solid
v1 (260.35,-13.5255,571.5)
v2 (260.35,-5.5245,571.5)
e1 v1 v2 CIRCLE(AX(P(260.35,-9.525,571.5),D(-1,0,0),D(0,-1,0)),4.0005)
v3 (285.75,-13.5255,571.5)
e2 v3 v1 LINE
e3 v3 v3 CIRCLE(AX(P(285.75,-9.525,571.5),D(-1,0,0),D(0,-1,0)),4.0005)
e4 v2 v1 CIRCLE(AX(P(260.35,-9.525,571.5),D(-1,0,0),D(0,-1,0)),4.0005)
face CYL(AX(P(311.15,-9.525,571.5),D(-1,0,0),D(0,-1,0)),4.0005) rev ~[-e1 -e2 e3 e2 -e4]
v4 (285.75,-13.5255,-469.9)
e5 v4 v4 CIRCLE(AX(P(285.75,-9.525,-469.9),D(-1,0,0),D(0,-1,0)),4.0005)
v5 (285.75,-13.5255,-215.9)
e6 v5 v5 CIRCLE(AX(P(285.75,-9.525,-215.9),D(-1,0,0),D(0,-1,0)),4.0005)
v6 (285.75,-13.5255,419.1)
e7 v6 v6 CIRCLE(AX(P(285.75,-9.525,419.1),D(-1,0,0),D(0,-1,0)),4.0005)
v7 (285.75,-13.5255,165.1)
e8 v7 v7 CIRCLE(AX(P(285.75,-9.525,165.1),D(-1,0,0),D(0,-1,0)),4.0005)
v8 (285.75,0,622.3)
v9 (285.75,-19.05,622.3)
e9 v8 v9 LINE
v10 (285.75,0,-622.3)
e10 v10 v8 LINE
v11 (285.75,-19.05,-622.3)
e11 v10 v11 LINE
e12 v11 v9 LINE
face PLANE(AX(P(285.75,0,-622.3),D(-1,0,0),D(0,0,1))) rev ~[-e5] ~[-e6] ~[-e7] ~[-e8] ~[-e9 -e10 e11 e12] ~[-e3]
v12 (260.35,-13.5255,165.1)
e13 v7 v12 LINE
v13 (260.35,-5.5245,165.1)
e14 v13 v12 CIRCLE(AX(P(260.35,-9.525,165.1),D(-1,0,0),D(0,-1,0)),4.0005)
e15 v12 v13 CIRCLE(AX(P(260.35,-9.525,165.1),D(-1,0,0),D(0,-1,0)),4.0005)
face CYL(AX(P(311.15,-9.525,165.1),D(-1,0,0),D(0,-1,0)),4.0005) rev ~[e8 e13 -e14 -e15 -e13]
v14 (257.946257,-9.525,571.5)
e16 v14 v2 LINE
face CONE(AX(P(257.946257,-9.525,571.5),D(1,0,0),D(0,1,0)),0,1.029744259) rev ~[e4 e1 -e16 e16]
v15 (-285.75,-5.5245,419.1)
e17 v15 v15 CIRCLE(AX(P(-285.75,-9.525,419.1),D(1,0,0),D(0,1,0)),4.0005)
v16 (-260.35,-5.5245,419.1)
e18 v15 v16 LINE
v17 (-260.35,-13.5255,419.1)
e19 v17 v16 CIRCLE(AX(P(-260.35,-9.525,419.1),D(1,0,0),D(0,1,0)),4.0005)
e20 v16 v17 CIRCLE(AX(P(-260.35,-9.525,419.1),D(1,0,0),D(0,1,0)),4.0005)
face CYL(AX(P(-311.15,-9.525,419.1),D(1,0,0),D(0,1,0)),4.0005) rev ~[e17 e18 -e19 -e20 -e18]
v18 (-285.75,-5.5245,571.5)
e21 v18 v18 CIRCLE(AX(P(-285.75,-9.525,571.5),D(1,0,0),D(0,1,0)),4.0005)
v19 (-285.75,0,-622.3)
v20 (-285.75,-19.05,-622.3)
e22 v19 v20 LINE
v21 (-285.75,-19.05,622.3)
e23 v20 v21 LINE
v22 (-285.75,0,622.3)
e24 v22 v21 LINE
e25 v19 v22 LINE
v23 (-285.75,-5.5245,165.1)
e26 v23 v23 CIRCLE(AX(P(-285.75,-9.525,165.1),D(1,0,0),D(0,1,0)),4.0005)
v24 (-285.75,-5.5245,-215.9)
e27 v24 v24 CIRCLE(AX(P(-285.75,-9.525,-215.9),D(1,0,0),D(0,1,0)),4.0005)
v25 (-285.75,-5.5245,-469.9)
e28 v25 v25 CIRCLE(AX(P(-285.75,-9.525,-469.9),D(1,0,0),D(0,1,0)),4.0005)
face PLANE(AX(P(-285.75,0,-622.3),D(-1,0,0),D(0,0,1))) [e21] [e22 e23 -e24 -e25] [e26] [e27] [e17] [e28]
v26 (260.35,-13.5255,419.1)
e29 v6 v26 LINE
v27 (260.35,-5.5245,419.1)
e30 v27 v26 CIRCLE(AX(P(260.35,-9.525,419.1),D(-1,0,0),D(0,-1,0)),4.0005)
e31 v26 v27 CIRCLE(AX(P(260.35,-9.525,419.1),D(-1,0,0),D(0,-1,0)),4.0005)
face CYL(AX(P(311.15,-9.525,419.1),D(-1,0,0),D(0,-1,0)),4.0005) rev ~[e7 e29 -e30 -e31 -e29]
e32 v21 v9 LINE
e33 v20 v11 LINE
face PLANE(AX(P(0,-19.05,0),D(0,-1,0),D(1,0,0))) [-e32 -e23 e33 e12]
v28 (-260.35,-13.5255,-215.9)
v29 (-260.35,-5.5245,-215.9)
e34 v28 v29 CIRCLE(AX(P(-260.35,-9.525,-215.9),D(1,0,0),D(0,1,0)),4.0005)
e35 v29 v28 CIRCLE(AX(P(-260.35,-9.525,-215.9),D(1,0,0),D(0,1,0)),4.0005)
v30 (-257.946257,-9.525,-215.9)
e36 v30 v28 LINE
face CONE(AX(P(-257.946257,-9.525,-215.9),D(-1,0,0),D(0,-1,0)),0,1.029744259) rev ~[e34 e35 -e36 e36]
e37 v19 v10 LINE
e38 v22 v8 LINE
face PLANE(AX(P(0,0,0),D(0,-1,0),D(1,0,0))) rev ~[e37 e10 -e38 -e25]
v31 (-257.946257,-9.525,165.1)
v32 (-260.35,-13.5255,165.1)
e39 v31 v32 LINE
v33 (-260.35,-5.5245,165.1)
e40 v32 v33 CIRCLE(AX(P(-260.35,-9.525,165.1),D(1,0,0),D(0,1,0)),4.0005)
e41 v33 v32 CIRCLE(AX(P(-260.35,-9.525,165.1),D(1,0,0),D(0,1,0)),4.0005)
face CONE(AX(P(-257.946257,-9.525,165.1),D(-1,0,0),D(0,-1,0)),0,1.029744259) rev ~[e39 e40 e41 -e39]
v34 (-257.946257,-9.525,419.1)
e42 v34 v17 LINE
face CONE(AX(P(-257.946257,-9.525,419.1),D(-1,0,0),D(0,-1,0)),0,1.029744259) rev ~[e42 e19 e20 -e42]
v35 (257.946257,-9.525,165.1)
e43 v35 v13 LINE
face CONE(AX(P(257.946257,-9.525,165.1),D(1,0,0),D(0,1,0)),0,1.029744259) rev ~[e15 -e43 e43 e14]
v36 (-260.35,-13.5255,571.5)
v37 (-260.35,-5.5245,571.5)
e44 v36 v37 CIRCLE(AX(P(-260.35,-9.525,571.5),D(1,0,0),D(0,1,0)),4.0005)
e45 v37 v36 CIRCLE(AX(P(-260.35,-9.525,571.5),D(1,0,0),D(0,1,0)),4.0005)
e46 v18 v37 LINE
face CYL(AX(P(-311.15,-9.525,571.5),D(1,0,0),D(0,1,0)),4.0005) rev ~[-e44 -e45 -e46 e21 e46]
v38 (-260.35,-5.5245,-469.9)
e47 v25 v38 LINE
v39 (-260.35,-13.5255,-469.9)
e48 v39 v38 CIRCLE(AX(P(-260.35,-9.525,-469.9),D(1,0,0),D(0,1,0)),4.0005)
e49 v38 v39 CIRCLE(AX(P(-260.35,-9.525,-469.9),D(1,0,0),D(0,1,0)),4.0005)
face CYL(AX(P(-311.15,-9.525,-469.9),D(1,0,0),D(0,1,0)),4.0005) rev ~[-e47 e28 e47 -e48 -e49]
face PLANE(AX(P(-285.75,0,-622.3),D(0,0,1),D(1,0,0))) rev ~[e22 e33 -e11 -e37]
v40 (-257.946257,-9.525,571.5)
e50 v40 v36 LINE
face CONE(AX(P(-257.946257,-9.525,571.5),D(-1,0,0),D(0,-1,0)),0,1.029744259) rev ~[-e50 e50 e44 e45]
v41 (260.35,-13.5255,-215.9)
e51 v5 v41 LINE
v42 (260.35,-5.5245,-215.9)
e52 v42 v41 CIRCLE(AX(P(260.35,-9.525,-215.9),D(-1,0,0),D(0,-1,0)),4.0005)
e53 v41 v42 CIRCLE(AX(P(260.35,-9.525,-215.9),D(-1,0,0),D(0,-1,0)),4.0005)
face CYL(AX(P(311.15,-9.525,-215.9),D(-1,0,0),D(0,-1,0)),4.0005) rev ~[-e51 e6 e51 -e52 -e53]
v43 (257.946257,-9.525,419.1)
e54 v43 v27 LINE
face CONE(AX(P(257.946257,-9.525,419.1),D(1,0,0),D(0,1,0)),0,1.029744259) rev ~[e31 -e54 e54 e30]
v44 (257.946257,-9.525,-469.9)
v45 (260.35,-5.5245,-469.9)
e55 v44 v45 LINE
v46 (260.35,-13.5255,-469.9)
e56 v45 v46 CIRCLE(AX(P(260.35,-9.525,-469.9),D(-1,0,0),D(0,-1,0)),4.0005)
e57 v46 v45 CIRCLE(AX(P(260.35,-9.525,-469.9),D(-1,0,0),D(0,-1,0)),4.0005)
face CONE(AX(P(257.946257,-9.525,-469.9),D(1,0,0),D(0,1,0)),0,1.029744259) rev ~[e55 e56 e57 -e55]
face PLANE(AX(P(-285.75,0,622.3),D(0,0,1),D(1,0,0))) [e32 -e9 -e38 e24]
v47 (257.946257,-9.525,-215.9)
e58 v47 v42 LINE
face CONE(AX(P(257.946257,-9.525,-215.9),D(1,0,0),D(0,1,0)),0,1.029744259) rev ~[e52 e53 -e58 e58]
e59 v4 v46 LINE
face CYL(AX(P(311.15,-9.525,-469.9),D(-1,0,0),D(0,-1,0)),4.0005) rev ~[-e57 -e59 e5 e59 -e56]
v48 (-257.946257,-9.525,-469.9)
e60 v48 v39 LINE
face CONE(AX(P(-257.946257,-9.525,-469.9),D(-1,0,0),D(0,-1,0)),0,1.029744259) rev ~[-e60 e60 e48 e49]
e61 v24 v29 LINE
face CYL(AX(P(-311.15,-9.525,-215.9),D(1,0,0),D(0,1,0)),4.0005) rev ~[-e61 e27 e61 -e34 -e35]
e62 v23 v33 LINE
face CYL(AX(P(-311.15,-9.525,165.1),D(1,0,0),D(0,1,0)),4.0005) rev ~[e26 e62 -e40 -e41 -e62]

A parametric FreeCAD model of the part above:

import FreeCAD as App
import Part
import Sketcher
Q = App.Units.Quantity


def add_polygon(sketch, points):
    """Adds a closed chain of lines whose ends are joined by coincident constraints."""
    first, n = sketch.GeometryCount, len(points)
    for a, b in zip(points, points[1:] + points[:1]):
        sketch.addGeometry(Part.LineSegment(App.Vector(*a, 0), App.Vector(*b, 0)), False)
    for i in range(n):
        sketch.addConstraint(Sketcher.Constraint("Coincident", first + i, 2, first + (i + 1) % n, 1))

doc = App.newDocument("Part")
params = doc.addObject("Spreadsheet::Sheet", "Params")
for row, (alias, value) in enumerate([
    ("sketch1_height", "49 in"),
    ("sketch1_width", "22.5 in"),
    ("pad1_length", "0.75 in"),
    ("sketch2_diameter", "0.315 in"),
    ("hole_diameter", "0.315 in"),
    ("hole_depth", "1 in"),
    ("sketch3_diameter", "0.315 in"),
    ("hole2_diameter", "0.315 in"),
    ("hole2_depth", "1 in"),
], start=1):
    params.set(f"A{row}", alias)
    params.set(f"B{row}", "=" + value)
    params.setAlias(f"B{row}", alias)

body = doc.addObject("PartDesign::Body", "Body")

sketch1 = body.newObject("Sketcher::SketchObject", "Sketch")
sketch1.AttachmentSupport = (doc.getObject("XZ_Plane"), [""])
sketch1.MapMode = "FlatFace"
add_polygon(sketch1, [(-286, 622), (-286, -622), (286, -622), (286, 622)])
sketch1.addConstraint(Sketcher.Constraint("Vertical", 0))
sketch1.addConstraint(Sketcher.Constraint("Horizontal", 1))
sketch1.addConstraint(Sketcher.Constraint("Vertical", 2))
sketch1.addConstraint(Sketcher.Constraint("Horizontal", 3))
sketch1.addConstraint(Sketcher.Constraint("Symmetric", 0, 2, 2, 2, -1, 1))
sketch1.addConstraint(Sketcher.Constraint("DistanceY", 0, 2, 0, 1, Q("49 in")))
sketch1.addConstraint(Sketcher.Constraint("DistanceX", 1, 1, 1, 2, Q("22.5 in")))
sketch1.setExpression("Constraints[9]", "Params.sketch1_height")
sketch1.setExpression("Constraints[10]", "Params.sketch1_width")
pad1 = body.newObject("PartDesign::Pad", "Pad")
pad1.Profile = sketch1
pad1.setExpression("Length", "Params.pad1_length")

sketch2 = body.newObject("Sketcher::SketchObject", "Sketch001")
sketch2.AttachmentSupport = (doc.getObject("YZ_Plane"), [""])
sketch2.MapMode = "FlatFace"
sketch2.AttachmentOffset = App.Placement(App.Vector(0, 0, 11.25 * 25.4), App.Rotation())
sketch2.addGeometry(Part.Circle(App.Vector(-9.5, 571.5, 0), App.Vector(0, 0, 1), 4), False)
sketch2.addGeometry(Part.Circle(App.Vector(-9.5, 419.1, 0), App.Vector(0, 0, 1), 4), False)
sketch2.addGeometry(Part.Circle(App.Vector(-9.5, 165.1, 0), App.Vector(0, 0, 1), 4), False)
sketch2.addGeometry(Part.Circle(App.Vector(-9.5, -215.9, 0), App.Vector(0, 0, 1), 4), False)
sketch2.addGeometry(Part.Circle(App.Vector(-9.5, -469.9, 0), App.Vector(0, 0, 1), 4), False)
sketch2.addConstraint(Sketcher.Constraint("Equal", 0, 1))
sketch2.addConstraint(Sketcher.Constraint("Equal", 1, 2))
sketch2.addConstraint(Sketcher.Constraint("Equal", 2, 3))
sketch2.addConstraint(Sketcher.Constraint("Equal", 3, 4))
sketch2.addConstraint(Sketcher.Constraint("Vertical", 0, 3, 1, 3))
sketch2.addConstraint(Sketcher.Constraint("Vertical", 1, 3, 2, 3))
sketch2.addConstraint(Sketcher.Constraint("Vertical", 2, 3, 3, 3))
sketch2.addConstraint(Sketcher.Constraint("Vertical", 3, 3, 4, 3))
sketch2.addConstraint(Sketcher.Constraint("Diameter", 0, Q("0.315 in")))
sketch2.addConstraint(Sketcher.Constraint("DistanceY", 1, 3, 0, 3, Q("6 in")))
sketch2.addConstraint(Sketcher.Constraint("DistanceY", 2, 3, 1, 3, Q("10 in")))
sketch2.addConstraint(Sketcher.Constraint("DistanceY", 3, 3, 2, 3, Q("15 in")))
sketch2.addConstraint(Sketcher.Constraint("DistanceY", 4, 3, 3, 3, Q("10 in")))
sketch2.addConstraint(Sketcher.Constraint("DistanceY", -1, 1, 0, 3, Q("22.5 in")))
sketch2.addConstraint(Sketcher.Constraint("DistanceX", 0, 3, -1, 1, Q("0.375 in")))
sketch2.setExpression("Constraints[8]", "Params.sketch2_diameter")
doc.recompute()
hole = body.newObject("PartDesign::Hole", "Hole")
hole.Profile = sketch2
hole.ThreadType = "None"
hole.setExpression("Diameter", "Params.hole_diameter")
hole.DepthType = "Dimension"
hole.setExpression("Depth", "Params.hole_depth")
hole.DrillPoint = "Angled"
hole.DrillPointAngle = 118

sketch3 = body.newObject("Sketcher::SketchObject", "Sketch002")
sketch3.AttachmentSupport = (doc.getObject("YZ_Plane"), [""])
sketch3.MapMode = "FlatFace"
sketch3.AttachmentOffset = App.Placement(App.Vector(0, 0, -11.25 * 25.4), App.Rotation())
sketch3.addGeometry(Part.Circle(App.Vector(-9.5, 571.5, 0), App.Vector(0, 0, 1), 4), False)
sketch3.addGeometry(Part.Circle(App.Vector(-9.5, 419.1, 0), App.Vector(0, 0, 1), 4), False)
sketch3.addGeometry(Part.Circle(App.Vector(-9.5, 165.1, 0), App.Vector(0, 0, 1), 4), False)
sketch3.addGeometry(Part.Circle(App.Vector(-9.5, -215.9, 0), App.Vector(0, 0, 1), 4), False)
sketch3.addGeometry(Part.Circle(App.Vector(-9.5, -469.9, 0), App.Vector(0, 0, 1), 4), False)
sketch3.addConstraint(Sketcher.Constraint("Equal", 0, 1))
sketch3.addConstraint(Sketcher.Constraint("Equal", 1, 2))
sketch3.addConstraint(Sketcher.Constraint("Equal", 2, 3))
sketch3.addConstraint(Sketcher.Constraint("Equal", 3, 4))
sketch3.addConstraint(Sketcher.Constraint("Vertical", 0, 3, 1, 3))
sketch3.addConstraint(Sketcher.Constraint("Vertical", 1, 3, 2, 3))
sketch3.addConstraint(Sketcher.Constraint("Vertical", 2, 3, 3, 3))
sketch3.addConstraint(Sketcher.Constraint("Vertical", 3, 3, 4, 3))
sketch3.addConstraint(Sketcher.Constraint("Diameter", 0, Q("0.315 in")))
sketch3.addConstraint(Sketcher.Constraint("DistanceY", 1, 3, 0, 3, Q("6 in")))
sketch3.addConstraint(Sketcher.Constraint("DistanceY", 2, 3, 1, 3, Q("10 in")))
sketch3.addConstraint(Sketcher.Constraint("DistanceY", 3, 3, 2, 3, Q("15 in")))
sketch3.addConstraint(Sketcher.Constraint("DistanceY", 4, 3, 3, 3, Q("10 in")))
sketch3.addConstraint(Sketcher.Constraint("DistanceY", -1, 1, 0, 3, Q("22.5 in")))
sketch3.addConstraint(Sketcher.Constraint("DistanceX", 0, 3, -1, 1, Q("0.375 in")))
sketch3.setExpression("Constraints[8]", "Params.sketch3_diameter")
doc.recompute()
hole2 = body.newObject("PartDesign::Hole", "Hole001")
hole2.Profile = sketch3
hole2.ThreadType = "None"
hole2.setExpression("Diameter", "Params.hole2_diameter")
hole2.DepthType = "Dimension"
hole2.setExpression("Depth", "Params.hole2_depth")
hole2.DrillPoint = "Angled"
hole2.DrillPointAngle = 118
hole2.Reversed = True

doc.recompute()
